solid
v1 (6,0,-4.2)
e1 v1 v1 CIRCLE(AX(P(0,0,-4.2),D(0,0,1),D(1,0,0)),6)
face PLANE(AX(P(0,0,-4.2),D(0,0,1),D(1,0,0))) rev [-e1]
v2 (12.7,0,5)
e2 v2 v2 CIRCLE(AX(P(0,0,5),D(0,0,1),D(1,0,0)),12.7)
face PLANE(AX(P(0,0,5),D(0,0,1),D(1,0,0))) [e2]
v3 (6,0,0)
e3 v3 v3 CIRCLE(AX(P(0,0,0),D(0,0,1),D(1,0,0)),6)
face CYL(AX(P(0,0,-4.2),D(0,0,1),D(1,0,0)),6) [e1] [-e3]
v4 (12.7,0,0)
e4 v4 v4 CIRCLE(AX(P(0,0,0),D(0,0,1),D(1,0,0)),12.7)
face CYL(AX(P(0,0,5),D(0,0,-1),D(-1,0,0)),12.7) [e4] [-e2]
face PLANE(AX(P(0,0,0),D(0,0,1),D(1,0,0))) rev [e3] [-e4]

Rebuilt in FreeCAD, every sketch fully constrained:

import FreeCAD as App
import Part
import Sketcher
Q = App.Units.Quantity

doc = App.newDocument("Part")
body = doc.addObject("PartDesign::Body", "Body")

# Sketch on XY plane
sketch1 = body.newObject("Sketcher::SketchObject", "Sketch")
sketch1.AttachmentSupport = (doc.getObject("XY_Plane"), [""])
sketch1.MapMode = "FlatFace"
sketch1.addGeometry(Part.Circle(App.Vector(0, 0, 0), App.Vector(0, 0, 1), 13), False)
sketch1.addConstraint([
    Sketcher.Constraint("Coincident", 0, 3, -1, 1),
    Sketcher.Constraint("Diameter", 0, Q("25.4 mm")),
])
pad1 = body.newObject("PartDesign::Pad", "Pad")
pad1.Profile = sketch1
pad1.Length = 5

# Sketch on XY plane
sketch2 = body.newObject("Sketcher::SketchObject", "Sketch001")
sketch2.AttachmentSupport = (doc.getObject("XY_Plane"), [""])
sketch2.MapMode = "FlatFace"
sketch2.addGeometry(Part.Circle(App.Vector(0, 0, 0), App.Vector(0, 0, 1), 6), False)
sketch2.addConstraint([
    Sketcher.Constraint("Coincident", 0, 3, -1, 1),
    Sketcher.Constraint("Diameter", 0, Q("12 mm")),
])
pad2 = body.newObject("PartDesign::Pad", "Pad001")
pad2.Profile = sketch2
pad2.Length = 4.2
pad2.Reversed = True

doc.recompute()
